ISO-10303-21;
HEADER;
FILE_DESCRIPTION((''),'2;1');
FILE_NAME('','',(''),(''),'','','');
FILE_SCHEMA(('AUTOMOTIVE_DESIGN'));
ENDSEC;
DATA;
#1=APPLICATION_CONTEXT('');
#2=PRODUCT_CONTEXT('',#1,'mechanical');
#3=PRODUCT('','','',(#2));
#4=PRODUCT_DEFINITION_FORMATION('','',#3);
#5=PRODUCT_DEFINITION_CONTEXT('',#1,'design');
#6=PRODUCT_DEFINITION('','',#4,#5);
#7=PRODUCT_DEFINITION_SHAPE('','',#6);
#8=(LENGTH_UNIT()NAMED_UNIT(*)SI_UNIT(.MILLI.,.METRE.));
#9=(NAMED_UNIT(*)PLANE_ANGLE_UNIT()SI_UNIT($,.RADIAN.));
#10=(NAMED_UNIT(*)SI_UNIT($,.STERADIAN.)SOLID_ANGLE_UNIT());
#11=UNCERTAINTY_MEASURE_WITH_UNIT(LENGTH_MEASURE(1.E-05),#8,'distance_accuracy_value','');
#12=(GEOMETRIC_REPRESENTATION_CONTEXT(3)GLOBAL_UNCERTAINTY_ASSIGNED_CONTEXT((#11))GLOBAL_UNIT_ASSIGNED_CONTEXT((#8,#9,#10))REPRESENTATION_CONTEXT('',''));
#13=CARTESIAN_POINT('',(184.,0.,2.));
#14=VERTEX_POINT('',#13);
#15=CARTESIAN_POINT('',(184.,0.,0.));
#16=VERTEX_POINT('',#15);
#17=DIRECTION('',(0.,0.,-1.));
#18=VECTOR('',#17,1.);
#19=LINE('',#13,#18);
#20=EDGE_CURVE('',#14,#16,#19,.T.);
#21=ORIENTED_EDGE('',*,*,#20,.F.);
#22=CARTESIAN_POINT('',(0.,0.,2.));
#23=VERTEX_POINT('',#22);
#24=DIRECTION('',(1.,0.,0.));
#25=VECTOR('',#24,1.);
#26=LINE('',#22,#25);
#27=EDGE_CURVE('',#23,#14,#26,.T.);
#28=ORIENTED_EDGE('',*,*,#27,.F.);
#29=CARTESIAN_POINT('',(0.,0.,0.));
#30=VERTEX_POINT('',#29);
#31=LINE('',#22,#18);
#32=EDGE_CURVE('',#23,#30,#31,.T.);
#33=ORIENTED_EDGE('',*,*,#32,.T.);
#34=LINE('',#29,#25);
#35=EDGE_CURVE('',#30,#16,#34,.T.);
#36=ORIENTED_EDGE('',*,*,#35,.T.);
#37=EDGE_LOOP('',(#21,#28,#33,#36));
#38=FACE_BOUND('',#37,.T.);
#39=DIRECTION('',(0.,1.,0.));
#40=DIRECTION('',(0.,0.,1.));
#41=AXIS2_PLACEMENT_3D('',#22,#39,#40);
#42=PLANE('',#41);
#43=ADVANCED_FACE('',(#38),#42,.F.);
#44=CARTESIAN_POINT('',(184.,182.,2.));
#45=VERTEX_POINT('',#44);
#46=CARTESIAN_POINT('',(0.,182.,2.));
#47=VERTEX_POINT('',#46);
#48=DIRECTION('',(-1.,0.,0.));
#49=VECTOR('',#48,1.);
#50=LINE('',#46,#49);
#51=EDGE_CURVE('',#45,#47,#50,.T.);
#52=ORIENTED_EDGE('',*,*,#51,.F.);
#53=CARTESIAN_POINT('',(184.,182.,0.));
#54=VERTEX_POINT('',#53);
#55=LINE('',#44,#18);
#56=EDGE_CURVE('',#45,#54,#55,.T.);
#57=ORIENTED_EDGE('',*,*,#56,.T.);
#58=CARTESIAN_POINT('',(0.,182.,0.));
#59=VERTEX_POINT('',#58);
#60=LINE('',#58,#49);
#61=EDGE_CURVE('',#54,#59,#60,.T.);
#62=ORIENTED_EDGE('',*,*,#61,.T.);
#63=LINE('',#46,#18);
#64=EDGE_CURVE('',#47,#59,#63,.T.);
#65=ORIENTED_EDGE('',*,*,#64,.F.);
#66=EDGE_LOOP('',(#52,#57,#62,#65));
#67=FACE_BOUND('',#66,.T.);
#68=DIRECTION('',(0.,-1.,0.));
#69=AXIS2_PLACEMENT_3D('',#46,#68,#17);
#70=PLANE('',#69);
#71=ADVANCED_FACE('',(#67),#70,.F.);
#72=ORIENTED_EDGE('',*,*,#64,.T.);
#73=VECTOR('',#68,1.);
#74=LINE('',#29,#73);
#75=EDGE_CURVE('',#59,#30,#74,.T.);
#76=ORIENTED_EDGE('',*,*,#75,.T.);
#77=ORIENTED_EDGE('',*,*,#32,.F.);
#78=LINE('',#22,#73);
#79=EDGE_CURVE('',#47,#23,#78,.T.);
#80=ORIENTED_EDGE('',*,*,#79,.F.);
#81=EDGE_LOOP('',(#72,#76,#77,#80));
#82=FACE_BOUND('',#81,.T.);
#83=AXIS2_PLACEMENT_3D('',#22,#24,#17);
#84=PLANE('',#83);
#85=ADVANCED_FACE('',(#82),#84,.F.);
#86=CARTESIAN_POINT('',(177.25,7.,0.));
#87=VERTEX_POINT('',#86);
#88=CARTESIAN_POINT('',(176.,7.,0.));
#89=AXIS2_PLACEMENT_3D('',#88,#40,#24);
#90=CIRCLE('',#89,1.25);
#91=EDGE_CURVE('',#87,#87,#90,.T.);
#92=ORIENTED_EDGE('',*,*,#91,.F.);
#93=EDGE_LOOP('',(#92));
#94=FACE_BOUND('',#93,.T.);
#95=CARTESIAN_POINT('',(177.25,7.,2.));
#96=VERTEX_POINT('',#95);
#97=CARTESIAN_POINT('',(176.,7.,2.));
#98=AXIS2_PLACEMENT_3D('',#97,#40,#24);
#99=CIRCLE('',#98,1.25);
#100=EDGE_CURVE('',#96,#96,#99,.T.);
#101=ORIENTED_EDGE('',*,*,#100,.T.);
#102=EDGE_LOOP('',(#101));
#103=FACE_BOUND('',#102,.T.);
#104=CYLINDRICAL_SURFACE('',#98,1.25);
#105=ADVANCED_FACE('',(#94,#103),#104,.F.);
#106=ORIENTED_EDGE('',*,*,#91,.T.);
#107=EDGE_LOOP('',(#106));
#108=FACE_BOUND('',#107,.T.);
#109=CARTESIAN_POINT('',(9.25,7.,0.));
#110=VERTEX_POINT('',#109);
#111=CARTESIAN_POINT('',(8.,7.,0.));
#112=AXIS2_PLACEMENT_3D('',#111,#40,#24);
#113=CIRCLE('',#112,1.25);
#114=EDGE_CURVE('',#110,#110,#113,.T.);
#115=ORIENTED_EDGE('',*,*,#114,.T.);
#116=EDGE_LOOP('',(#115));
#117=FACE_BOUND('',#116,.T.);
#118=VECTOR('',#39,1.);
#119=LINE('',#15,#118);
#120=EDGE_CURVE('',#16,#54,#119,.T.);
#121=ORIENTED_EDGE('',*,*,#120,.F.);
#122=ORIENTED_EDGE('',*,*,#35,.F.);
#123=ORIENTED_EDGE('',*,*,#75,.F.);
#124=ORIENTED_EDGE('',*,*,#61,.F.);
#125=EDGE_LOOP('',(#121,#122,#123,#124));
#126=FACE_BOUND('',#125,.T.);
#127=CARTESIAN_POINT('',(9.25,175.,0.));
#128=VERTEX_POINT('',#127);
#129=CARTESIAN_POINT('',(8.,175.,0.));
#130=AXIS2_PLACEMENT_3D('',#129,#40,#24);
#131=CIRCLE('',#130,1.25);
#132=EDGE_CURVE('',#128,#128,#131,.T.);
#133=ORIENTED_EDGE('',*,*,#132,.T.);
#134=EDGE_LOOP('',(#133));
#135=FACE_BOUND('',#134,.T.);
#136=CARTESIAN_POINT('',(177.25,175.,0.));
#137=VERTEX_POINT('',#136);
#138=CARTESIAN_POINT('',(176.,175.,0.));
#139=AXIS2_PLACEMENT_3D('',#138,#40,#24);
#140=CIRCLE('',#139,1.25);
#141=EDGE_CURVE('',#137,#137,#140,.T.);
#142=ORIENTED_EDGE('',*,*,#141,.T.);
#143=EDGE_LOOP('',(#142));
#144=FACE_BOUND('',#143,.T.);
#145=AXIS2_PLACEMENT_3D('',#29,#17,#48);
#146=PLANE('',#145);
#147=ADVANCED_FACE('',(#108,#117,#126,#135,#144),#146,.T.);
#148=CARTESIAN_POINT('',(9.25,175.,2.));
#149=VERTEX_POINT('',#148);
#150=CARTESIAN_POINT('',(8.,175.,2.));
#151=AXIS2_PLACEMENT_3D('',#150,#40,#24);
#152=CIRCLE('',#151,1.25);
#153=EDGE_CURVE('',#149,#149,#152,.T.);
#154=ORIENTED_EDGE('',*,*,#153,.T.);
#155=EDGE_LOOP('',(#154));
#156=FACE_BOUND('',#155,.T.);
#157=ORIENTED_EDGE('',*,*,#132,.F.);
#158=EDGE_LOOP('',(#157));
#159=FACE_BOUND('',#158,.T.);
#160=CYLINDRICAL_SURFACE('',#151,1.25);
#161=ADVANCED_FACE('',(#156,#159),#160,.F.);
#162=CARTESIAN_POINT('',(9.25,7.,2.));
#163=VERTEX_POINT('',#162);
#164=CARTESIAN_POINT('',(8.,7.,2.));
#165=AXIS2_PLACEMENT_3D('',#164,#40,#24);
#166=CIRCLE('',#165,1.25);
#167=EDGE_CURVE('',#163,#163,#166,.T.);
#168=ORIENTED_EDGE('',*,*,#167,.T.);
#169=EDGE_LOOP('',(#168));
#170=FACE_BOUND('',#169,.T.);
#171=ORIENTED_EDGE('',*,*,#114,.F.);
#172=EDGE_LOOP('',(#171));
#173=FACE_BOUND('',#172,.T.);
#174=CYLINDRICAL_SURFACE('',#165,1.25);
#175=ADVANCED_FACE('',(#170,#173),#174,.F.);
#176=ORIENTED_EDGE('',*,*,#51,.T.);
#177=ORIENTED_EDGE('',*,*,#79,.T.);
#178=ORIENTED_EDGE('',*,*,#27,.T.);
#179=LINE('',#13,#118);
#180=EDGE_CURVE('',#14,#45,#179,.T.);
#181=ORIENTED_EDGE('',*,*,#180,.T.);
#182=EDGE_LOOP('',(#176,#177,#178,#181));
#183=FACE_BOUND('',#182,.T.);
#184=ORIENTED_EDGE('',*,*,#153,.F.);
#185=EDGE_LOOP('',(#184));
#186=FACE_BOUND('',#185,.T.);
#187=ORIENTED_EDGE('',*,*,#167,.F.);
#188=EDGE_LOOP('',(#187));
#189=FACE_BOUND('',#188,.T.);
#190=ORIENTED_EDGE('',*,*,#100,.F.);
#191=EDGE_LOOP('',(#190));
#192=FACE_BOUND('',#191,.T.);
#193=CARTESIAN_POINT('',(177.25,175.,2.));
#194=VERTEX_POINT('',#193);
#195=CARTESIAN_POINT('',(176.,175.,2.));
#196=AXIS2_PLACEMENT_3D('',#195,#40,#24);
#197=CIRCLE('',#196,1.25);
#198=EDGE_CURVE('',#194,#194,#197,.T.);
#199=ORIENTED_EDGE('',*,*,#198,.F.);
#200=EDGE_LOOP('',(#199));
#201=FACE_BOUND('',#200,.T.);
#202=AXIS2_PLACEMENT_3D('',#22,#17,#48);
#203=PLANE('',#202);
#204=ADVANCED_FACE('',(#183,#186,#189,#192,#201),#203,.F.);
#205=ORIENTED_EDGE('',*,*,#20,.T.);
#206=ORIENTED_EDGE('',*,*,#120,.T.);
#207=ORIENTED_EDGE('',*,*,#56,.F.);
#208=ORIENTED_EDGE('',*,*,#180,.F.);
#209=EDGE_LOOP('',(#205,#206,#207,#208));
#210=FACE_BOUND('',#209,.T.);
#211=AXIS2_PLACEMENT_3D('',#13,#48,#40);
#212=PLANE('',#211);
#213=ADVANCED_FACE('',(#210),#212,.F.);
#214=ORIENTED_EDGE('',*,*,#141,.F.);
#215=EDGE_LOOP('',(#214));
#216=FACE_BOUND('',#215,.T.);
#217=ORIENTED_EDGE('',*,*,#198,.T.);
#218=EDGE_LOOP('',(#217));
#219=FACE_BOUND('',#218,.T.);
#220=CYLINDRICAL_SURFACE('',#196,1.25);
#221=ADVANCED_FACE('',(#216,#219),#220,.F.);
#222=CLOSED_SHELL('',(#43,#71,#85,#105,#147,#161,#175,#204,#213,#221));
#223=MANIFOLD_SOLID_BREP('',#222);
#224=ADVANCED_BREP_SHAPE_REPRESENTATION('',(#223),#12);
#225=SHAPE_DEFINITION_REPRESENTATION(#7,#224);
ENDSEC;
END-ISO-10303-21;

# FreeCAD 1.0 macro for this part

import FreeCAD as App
import Part
import Sketcher

doc = App.newDocument("Part")
body = doc.addObject("PartDesign::Body", "Body")

sketch1 = doc.addObject("Sketcher::SketchObject", "Sketch")
body.addObject(sketch1)
sketch1.AttachmentSupport = (doc.XY_Plane, [""])
sketch1.MapMode = "FlatFace"
sketch1.addGeometry(Part.LineSegment(App.Vector(0, 182, 0), App.Vector(0, 0, 0)), False)
sketch1.addGeometry(Part.LineSegment(App.Vector(0, 0, 0), App.Vector(184, 0, 0)), False)
sketch1.addGeometry(Part.LineSegment(App.Vector(184, 0, 0), App.Vector(184, 182, 0)), False)
sketch1.addGeometry(Part.LineSegment(App.Vector(184, 182, 0), App.Vector(0, 182, 0)), False)
sketch1.addConstraint(Sketcher.Constraint("Coincident", 0, 2, 1, 1))
sketch1.addConstraint(Sketcher.Constraint("Coincident", 1, 2, 2, 1))
sketch1.addConstraint(Sketcher.Constraint("Coincident", 2, 2, 3, 1))
sketch1.addConstraint(Sketcher.Constraint("Coincident", 3, 2, 0, 1))
sketch1.addConstraint(Sketcher.Constraint("Vertical", 0))
sketch1.addConstraint(Sketcher.Constraint("Horizontal", 1))
sketch1.addConstraint(Sketcher.Constraint("Vertical", 2))
sketch1.addConstraint(Sketcher.Constraint("Horizontal", 3))
sketch1.addConstraint(Sketcher.Constraint("Coincident", 0, 2, -1, 1))
sketch1.addConstraint(Sketcher.Constraint("DistanceX", 1, 1, 1, 2, 184.0))
sketch1.addConstraint(Sketcher.Constraint("DistanceY", 0, 2, 0, 1, 182.0))
pad1 = doc.addObject("PartDesign::Pad", "Pad")
body.addObject(pad1)
pad1.Profile = sketch1
pad1.Length = 2

sketch2 = doc.addObject("Sketcher::SketchObject", "Sketch001")
body.addObject(sketch2)
sketch2.AttachmentSupport = (doc.XY_Plane, [""])
sketch2.MapMode = "FlatFace"
sketch2.AttachmentOffset = App.Placement(App.Vector(0, 0, 2), App.Rotation())
sketch2.addGeometry(Part.Circle(App.Vector(8, 175, 0), App.Vector(0, 0, 1), 1.25), False)
sketch2.addGeometry(Part.Circle(App.Vector(8, 7, 0), App.Vector(0, 0, 1), 1.25), False)
sketch2.addGeometry(Part.Circle(App.Vector(176, 7, 0), App.Vector(0, 0, 1), 1.25), False)
sketch2.addGeometry(Part.Circle(App.Vector(176, 175, 0), App.Vector(0, 0, 1), 1.25), False)
sketch2.addConstraint(Sketcher.Constraint("Equal", 0, 1))
sketch2.addConstraint(Sketcher.Constraint("Equal", 1, 2))
sketch2.addConstraint(Sketcher.Constraint("Equal", 2, 3))
sketch2.addConstraint(Sketcher.Constraint("Horizontal", 1, 3, 2, 3))
sketch2.addConstraint(Sketcher.Constraint("Horizontal", 0, 3, 3, 3))
sketch2.addConstraint(Sketcher.Constraint("Vertical", 0, 3, 1, 3))
sketch2.addConstraint(Sketcher.Constraint("Vertical", 2, 3, 3, 3))
sketch2.addConstraint(Sketcher.Constraint("Diameter", 0, 2.5))
sketch2.addConstraint(Sketcher.Constraint("DistanceX", -1, 1, 0, 3, 8.0))
sketch2.addConstraint(Sketcher.Constraint("DistanceY", -1, 1, 0, 3, 175.0))
sketch2.addConstraint(Sketcher.Constraint("DistanceY", -1, 1, 1, 3, 7.0))
sketch2.addConstraint(Sketcher.Constraint("DistanceX", -1, 1, 2, 3, 176.0))
doc.recompute()
hole = doc.addObject("PartDesign::Hole", "Hole")
body.addObject(hole)
hole.Profile = sketch2
hole.ThreadType = "None"
hole.Diameter = 2.5
hole.DepthType = "ThroughAll"

doc.recompute()
